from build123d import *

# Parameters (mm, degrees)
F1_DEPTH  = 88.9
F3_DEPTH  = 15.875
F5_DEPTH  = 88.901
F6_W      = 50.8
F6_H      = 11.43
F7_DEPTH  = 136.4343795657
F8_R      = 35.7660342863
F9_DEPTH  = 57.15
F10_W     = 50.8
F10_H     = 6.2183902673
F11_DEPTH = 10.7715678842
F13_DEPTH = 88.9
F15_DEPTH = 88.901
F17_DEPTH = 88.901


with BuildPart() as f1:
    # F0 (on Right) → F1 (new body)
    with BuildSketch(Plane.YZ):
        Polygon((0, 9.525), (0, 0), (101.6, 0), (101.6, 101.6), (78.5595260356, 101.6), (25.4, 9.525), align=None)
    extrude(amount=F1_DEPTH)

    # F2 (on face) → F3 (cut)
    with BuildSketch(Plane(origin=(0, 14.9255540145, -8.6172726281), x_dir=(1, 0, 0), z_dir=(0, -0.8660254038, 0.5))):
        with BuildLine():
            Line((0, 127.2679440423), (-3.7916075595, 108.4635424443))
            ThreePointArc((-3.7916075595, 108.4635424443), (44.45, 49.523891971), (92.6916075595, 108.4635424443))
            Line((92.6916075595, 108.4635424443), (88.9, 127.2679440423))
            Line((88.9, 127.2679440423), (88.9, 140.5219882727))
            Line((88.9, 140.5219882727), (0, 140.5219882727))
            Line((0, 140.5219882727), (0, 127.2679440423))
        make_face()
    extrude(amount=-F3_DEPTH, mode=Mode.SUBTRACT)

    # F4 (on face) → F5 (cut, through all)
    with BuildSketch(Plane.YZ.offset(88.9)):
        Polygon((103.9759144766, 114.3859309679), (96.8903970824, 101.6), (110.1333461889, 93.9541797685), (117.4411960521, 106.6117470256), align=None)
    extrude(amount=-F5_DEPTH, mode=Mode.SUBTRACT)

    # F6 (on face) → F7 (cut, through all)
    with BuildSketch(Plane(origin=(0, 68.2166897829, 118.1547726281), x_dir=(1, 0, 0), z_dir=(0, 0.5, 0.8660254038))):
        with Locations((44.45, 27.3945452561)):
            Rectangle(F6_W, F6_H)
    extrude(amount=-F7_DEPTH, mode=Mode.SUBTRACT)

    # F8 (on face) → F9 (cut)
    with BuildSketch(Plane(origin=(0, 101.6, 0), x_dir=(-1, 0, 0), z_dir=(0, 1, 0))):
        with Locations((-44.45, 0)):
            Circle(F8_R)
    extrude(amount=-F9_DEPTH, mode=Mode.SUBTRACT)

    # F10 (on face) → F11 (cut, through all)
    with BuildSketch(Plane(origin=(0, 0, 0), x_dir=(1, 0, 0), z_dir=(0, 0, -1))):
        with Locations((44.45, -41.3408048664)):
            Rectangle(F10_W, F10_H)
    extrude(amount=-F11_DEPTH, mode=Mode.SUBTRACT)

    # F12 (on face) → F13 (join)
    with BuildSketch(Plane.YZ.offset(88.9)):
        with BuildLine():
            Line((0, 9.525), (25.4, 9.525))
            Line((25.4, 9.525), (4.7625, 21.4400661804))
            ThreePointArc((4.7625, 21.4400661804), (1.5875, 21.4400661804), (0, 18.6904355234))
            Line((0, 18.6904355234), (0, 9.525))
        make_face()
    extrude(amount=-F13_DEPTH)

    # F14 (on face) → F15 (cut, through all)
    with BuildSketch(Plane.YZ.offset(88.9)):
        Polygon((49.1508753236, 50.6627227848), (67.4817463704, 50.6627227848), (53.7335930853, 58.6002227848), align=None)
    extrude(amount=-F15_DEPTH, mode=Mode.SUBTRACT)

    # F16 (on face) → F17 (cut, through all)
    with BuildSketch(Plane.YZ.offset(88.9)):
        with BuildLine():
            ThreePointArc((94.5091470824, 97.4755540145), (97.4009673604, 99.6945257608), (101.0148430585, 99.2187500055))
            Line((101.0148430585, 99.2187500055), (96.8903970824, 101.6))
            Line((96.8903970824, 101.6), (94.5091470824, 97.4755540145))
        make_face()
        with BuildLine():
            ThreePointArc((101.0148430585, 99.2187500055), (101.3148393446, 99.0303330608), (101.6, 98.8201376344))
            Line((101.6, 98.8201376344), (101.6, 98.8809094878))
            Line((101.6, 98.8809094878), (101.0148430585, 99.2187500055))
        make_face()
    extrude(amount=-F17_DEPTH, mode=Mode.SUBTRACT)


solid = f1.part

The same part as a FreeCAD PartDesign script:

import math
import FreeCAD as App
import Part
import Sketcher

V = App.Vector
Q = App.Units.Quantity


def add_polygon(sketch, points):
    """Adds a closed chain of lines whose ends are joined by coincident constraints."""
    first, n = sketch.GeometryCount, len(points)
    for a, b in zip(points, points[1:] + points[:1]):
        sketch.addGeometry(Part.LineSegment(App.Vector(*a, 0), App.Vector(*b, 0)), False)
    for i in range(n):
        sketch.addConstraint(Sketcher.Constraint("Coincident", first + i, 2, first + (i + 1) % n, 1))

doc = App.newDocument("Part")
params = doc.addObject("Spreadsheet::Sheet", "Params")
for row, (alias, value) in enumerate([
    ("sketch1_width", "4 in"),
    ("sketch1_width2", "1 in"),
    ("sketch1_height", "0.375 in"),
    ("pad1_length", "3.5 in"),
    ("sketch2_width", "3.5 in"),
    ("sketch2_radius", "1.9375 in"),
    ("pocket1_length", "0.625 in"),
    ("sketch4_width", "2 in"),
    ("sketch4_height", "0.45 in"),
    ("pocket4_length", "2.25 in"),
    ("sketch6_width", "2 in"),
    ("pocket5_length", "10.771568 mm"),
    ("sketch7_width", "1 in"),
    ("sketch7_radius", "0.125 in"),
    ("pad2_length", "3.5 in"),
    ("sketch8_length", "0.625 in"),
    ("sketch9_radius", "0.1875 in"),
], start=1):
    params.set(f"A{row}", alias)
    params.set(f"B{row}", "=" + value)
    params.setAlias(f"B{row}", alias)

body = doc.addObject("PartDesign::Body", "Body")

sketch1 = body.newObject("Sketcher::SketchObject", "Sketch")
sketch1.AttachmentSupport = (doc.getObject("YZ_Plane"), [""])
sketch1.MapMode = "FlatFace"
add_polygon(sketch1, [(0, 10), (0, 0), (102, 0), (102, 102), (79, 102), (25, 10)])
sketch1.addConstraint([
    Sketcher.Constraint("Vertical", 0),
    Sketcher.Constraint("Horizontal", 1),
    Sketcher.Constraint("Vertical", 2),
    Sketcher.Constraint("Horizontal", 3),
    Sketcher.Constraint("Horizontal", 5),
    Sketcher.Constraint("Coincident", 0, 2, -1, 1),
    Sketcher.Constraint("Equal", 1, 2),
    Sketcher.Constraint("DistanceX", 1, 1, 1, 2, Q("4 in")),
    Sketcher.Constraint("DistanceX", 5, 2, 5, 1, Q("1 in")),
    Sketcher.Constraint("Angle", 4, Q("-120 deg")),
    Sketcher.Constraint("DistanceY", 0, 2, 0, 1, Q("0.375 in")),
])
sketch1.setExpression("Constraints[13]", "Params.sketch1_width")
sketch1.setExpression("Constraints[14]", "Params.sketch1_width2")
sketch1.setExpression("Constraints[16]", "Params.sketch1_height")
pad1 = body.newObject("PartDesign::Pad", "Pad")
pad1.Profile = sketch1
pad1.setExpression("Length", "Params.pad1_length")

sketch2 = body.newObject("Sketcher::SketchObject", "Sketch001")
sketch2.Placement = App.Placement(V(0, 14.925554, -8.617273), App.Rotation(V(1, 0, 0), V(0, 0.5, 0.866025404), V(0, -0.866025404, 0.5), "ZXY"))
sketch2.addGeometry([
    Part.LineSegment(V(0, 127, 0), V(-4, 108, 0)),
    Part.ArcOfCircle(Part.Circle(V(44, 99, 0), V(0, 0, 1), 49), math.radians(169), math.radians(371)),
    Part.LineSegment(V(93, 108, 0), V(89, 127, 0)),
    Part.LineSegment(V(89, 127, 0), V(89, 141, 0)),
    Part.LineSegment(V(89, 141, 0), V(0, 141, 0)),
    Part.LineSegment(V(0, 141, 0), V(0, 127, 0)),
], False)
sketch2.addConstraint([
    Sketcher.Constraint("Tangent", 0, 2, 1, 1),
    Sketcher.Constraint("Tangent", 1, 2, 2, 1),
    Sketcher.Constraint("Coincident", 2, 2, 3, 1),
    Sketcher.Constraint("Coincident", 3, 2, 4, 1),
    Sketcher.Constraint("Coincident", 4, 2, 5, 1),
    Sketcher.Constraint("Coincident", 5, 2, 0, 1),
    Sketcher.Constraint("Vertical", 3),
    Sketcher.Constraint("Horizontal", 4),
    Sketcher.Constraint("Vertical", 5),
    Sketcher.Constraint("PointOnObject", 4, 2, -2),
    Sketcher.Constraint("Horizontal", 0, 2, 1, 2),
    Sketcher.Constraint("Horizontal", 2, 2, 5, 2),
    Sketcher.Constraint("DistanceX", 4, 2, 4, 1, Q("3.5 in")),
    Sketcher.Constraint("Radius", 1, Q("1.9375 in")),
    Sketcher.Constraint("DistanceY", 1, 2, 2, 2, Q("18.804402 mm")),
    Sketcher.Constraint("DistanceY", 3, 1, 3, 2, Q("13.254044 mm")),
    Sketcher.Constraint("DistanceY", -1, 1, 3, 2, Q("140.521988 mm")),
])
sketch2.setExpression("Constraints[12]", "Params.sketch2_width")
sketch2.setExpression("Constraints[13]", "Params.sketch2_radius")
pocket1 = body.newObject("PartDesign::Pocket", "Pocket")
pocket1.Profile = sketch2
pocket1.setExpression("Length", "Params.pocket1_length")

sketch3 = body.newObject("Sketcher::SketchObject", "Sketch002")
sketch3.AttachmentSupport = (doc.getObject("YZ_Plane"), [""])
sketch3.MapMode = "FlatFace"
sketch3.AttachmentOffset = App.Placement(V(0, 0, 3.5 * 25.4), App.Rotation())
add_polygon(sketch3, [(104, 114), (97, 102), (110, 94), (117, 107)])
sketch3.addConstraint([
    Sketcher.Constraint("Perpendicular", 1, 2),
    Sketcher.Constraint("Perpendicular", 2, 3),
    Sketcher.Constraint("DistanceY", -1, 1, 0, 2, Q("4 in")),
    Sketcher.Constraint("Angle", 1, Q("-30 deg")),
    Sketcher.Constraint("Distance", 2, Q("14.6157 mm")),
    Sketcher.Constraint("DistanceX", 0, 2, 2, 2, Q("20.550799 mm")),
    Sketcher.Constraint("DistanceY", -1, 1, 3, 2, Q("114.385931 mm")),
    Sketcher.Constraint("DistanceX", -1, 1, 0, 2, Q("96.890397 mm")),
])
pocket2 = body.newObject("PartDesign::Pocket", "Pocket001")
pocket2.Profile = sketch3
pocket2.Type = "ThroughAll"

sketch4 = body.newObject("Sketcher::SketchObject", "Sketch003")
sketch4.Placement = App.Placement(V(0, 68.21669, 118.154773), App.Rotation(V(1, 0, 0), V(0, 0.866025404, -0.5), V(0, 0.5, 0.866025404), "ZXY"))
add_polygon(sketch4, [(19, 33), (19, 22), (70, 22), (70, 33)])
sketch4.addConstraint([
    Sketcher.Constraint("Vertical", 0),
    Sketcher.Constraint("Horizontal", 1),
    Sketcher.Constraint("Vertical", 2),
    Sketcher.Constraint("Horizontal", 3),
    Sketcher.Constraint("DistanceX", 1, 1, 1, 2, Q("2 in")),
    Sketcher.Constraint("DistanceY", 0, 2, 0, 1, Q("0.45 in")),
    Sketcher.Constraint("DistanceX", -1, 1, 0, 2, Q("0.75 in")),
    Sketcher.Constraint("DistanceY", -1, 1, 0, 2, Q("21.679545 mm")),
])
sketch4.setExpression("Constraints[8]", "Params.sketch4_width")
sketch4.setExpression("Constraints[9]", "Params.sketch4_height")
pocket3 = body.newObject("PartDesign::Pocket", "Pocket002")
pocket3.Profile = sketch4
pocket3.Type = "ThroughAll"

sketch5 = body.newObject("Sketcher::SketchObject", "Sketch004")
sketch5.AttachmentSupport = (doc.getObject("XZ_Plane"), [""])
sketch5.MapMode = "FlatFace"
sketch5.AttachmentOffset = App.Placement(V(0, 0, -4 * 25.4), App.Rotation())
sketch5.addGeometry(Part.Circle(V(44, 0, 0), V(0, 0, 1), 36), False)
sketch5.addConstraint([
    Sketcher.Constraint("PointOnObject", 0, 3, -1),
    Sketcher.Constraint("DistanceX", -1, 1, 0, 3, Q("1.75 in")),
    Sketcher.Constraint("Diameter", 0, Q("71.532069 mm")),
])
pocket4 = body.newObject("PartDesign::Pocket", "Pocket003")
pocket4.Profile = sketch5
pocket4.setExpression("Length", "Params.pocket4_length")
pocket4.Reversed = True

sketch6 = body.newObject("Sketcher::SketchObject", "Sketch005")
sketch6.AttachmentSupport = (doc.getObject("XY_Plane"), [""])
sketch6.MapMode = "FlatFace"
add_polygon(sketch6, [(19, 38), (19, 44), (70, 44), (70, 38)])
sketch6.addConstraint([
    Sketcher.Constraint("Vertical", 0),
    Sketcher.Constraint("Horizontal", 1),
    Sketcher.Constraint("Vertical", 2),
    Sketcher.Constraint("Horizontal", 3),
    Sketcher.Constraint("DistanceX", 1, 1, 1, 2, Q("2 in")),
    Sketcher.Constraint("DistanceX", -1, 1, 0, 2, Q("0.75 in")),
    Sketcher.Constraint("DistanceY", -1, 1, 0, 2, Q("1.75 in")),
    Sketcher.Constraint("DistanceY", 0, 1, 0, 2, Q("6.21839 mm")),
])
sketch6.setExpression("Constraints[8]", "Params.sketch6_width")
pocket5 = body.newObject("PartDesign::Pocket", "Pocket004")
pocket5.Profile = sketch6
pocket5.setExpression("Length", "Params.pocket5_length")
pocket5.Reversed = True

sketch7 = body.newObject("Sketcher::SketchObject", "Sketch006")
sketch7.AttachmentSupport = (doc.getObject("YZ_Plane"), [""])
sketch7.MapMode = "FlatFace"
sketch7.AttachmentOffset = App.Placement(V(0, 0, 3.5 * 25.4), App.Rotation())
sketch7.addGeometry([
    Part.LineSegment(V(0, 9.5, 0), V(25.4, 9.5, 0)),
    Part.LineSegment(V(25.4, 9.5, 0), V(4.8, 21.4, 0)),
    Part.ArcOfCircle(Part.Circle(V(3.2, 18.7, 0), V(0, 0, 1), 3.2), math.radians(60), math.radians(180)),
    Part.LineSegment(V(0, 18.7, 0), V(0, 9.5, 0)),
], False)
sketch7.addConstraint([
    Sketcher.Constraint("Coincident", 0, 2, 1, 1),
    Sketcher.Constraint("Tangent", 1, 2, 2, 1),
    Sketcher.Constraint("Tangent", 2, 2, 3, 1),
    Sketcher.Constraint("Coincident", 3, 2, 0, 1),
    Sketcher.Constraint("Horizontal", 0),
    Sketcher.Constraint("Vertical", 3),
    Sketcher.Constraint("PointOnObject", 2, 2, -2),
    Sketcher.Constraint("DistanceX", 0, 1, 0, 2, Q("1 in")),
    Sketcher.Constraint("Angle", 1, Q("150 deg")),
    Sketcher.Constraint("Radius", 2, Q("0.125 in")),
    Sketcher.Constraint("DistanceY", -1, 1, 0, 2, Q("0.375 in")),
])
sketch7.setExpression("Constraints[7]", "Params.sketch7_width")
sketch7.setExpression("Constraints[9]", "Params.sketch7_radius")
pad2 = body.newObject("PartDesign::Pad", "Pad001")
pad2.Profile = sketch7
pad2.setExpression("Length", "Params.pad2_length")
pad2.Reversed = True

sketch8 = body.newObject("Sketcher::SketchObject", "Sketch007")
sketch8.AttachmentSupport = (doc.getObject("YZ_Plane"), [""])
sketch8.MapMode = "FlatFace"
sketch8.AttachmentOffset = App.Placement(V(0, 0, 3.5 * 25.4), App.Rotation())
add_polygon(sketch8, [(49, 51), (67, 51), (54, 59)])
sketch8.addConstraint([
    Sketcher.Constraint("Horizontal", 0),
    Sketcher.Constraint("Perpendicular", 1, 2),
    Sketcher.Constraint("Angle", 1, Q("150 deg")),
    Sketcher.Constraint("Distance", 1, Q("0.625 in")),
    Sketcher.Constraint("DistanceX", -1, 1, 0, 2, Q("67.481746 mm")),
    Sketcher.Constraint("DistanceY", -1, 1, 0, 2, Q("50.662723 mm")),
])
sketch8.setExpression("Constraints[6]", "Params.sketch8_length")
pocket6 = body.newObject("PartDesign::Pocket", "Pocket005")
pocket6.Profile = sketch8
pocket6.Type = "ThroughAll"

sketch9 = body.newObject("Sketcher::SketchObject", "Sketch008")
sketch9.AttachmentSupport = (doc.getObject("YZ_Plane"), [""])
sketch9.MapMode = "FlatFace"
sketch9.AttachmentOffset = App.Placement(V(0, 0, 3.5 * 25.4), App.Rotation())
sketch9.addGeometry([
    Part.ArcOfCircle(Part.Circle(V(98.63, 95.09, 0), V(0, 0, 1), 4.76), math.radians(60), math.radians(150)),
    Part.LineSegment(V(101.01, 99.22, 0), V(96.89, 101.6, 0)),
    Part.LineSegment(V(96.89, 101.6, 0), V(94.51, 97.48, 0)),
    Part.ArcOfCircle(Part.Circle(V(98.63, 95.09, 0), V(0, 0, 1), 4.76), math.radians(51.47), math.radians(60)),
    Part.LineSegment(V(101.6, 98.82, 0), V(101.6, 98.88, 0)),
    Part.LineSegment(V(101.6, 98.88, 0), V(101.01, 99.22, 0)),
], False)
sketch9.addConstraint([
    Sketcher.Constraint("Tangent", 0, 1, 1, 1),
    Sketcher.Constraint("Coincident", 1, 2, 2, 1),
    Sketcher.Constraint("Tangent", 2, 2, 0, 2),
    Sketcher.Constraint("Coincident", 3, 1, 4, 1),
    Sketcher.Constraint("Coincident", 4, 2, 5, 1),
    Sketcher.Constraint("Tangent", 5, 2, 3, 2),
    Sketcher.Constraint("Vertical", 4),
    Sketcher.Constraint("Coincident", 3, 3, 0, 3),
    Sketcher.Constraint("Coincident", 5, 2, 0, 1),
    Sketcher.Constraint("Perpendicular", 1, 2),
    Sketcher.Constraint("DistanceY", -1, 1, 1, 2, Q("4 in")),
    Sketcher.Constraint("DistanceX", -1, 1, 3, 1, Q("4 in")),
    Sketcher.Constraint("Angle", 1, Q("150 deg")),
    Sketcher.Constraint("Radius", 0, Q("0.1875 in")),
    Sketcher.Constraint("DistanceY", 4, 1, 4, 2, Q("0.060772 mm")),
])
sketch9.setExpression("Constraints[13]", "Params.sketch9_radius")
pocket7 = body.newObject("PartDesign::Pocket", "Pocket006")
pocket7.Profile = sketch9
pocket7.Type = "ThroughAll"

doc.recompute()
